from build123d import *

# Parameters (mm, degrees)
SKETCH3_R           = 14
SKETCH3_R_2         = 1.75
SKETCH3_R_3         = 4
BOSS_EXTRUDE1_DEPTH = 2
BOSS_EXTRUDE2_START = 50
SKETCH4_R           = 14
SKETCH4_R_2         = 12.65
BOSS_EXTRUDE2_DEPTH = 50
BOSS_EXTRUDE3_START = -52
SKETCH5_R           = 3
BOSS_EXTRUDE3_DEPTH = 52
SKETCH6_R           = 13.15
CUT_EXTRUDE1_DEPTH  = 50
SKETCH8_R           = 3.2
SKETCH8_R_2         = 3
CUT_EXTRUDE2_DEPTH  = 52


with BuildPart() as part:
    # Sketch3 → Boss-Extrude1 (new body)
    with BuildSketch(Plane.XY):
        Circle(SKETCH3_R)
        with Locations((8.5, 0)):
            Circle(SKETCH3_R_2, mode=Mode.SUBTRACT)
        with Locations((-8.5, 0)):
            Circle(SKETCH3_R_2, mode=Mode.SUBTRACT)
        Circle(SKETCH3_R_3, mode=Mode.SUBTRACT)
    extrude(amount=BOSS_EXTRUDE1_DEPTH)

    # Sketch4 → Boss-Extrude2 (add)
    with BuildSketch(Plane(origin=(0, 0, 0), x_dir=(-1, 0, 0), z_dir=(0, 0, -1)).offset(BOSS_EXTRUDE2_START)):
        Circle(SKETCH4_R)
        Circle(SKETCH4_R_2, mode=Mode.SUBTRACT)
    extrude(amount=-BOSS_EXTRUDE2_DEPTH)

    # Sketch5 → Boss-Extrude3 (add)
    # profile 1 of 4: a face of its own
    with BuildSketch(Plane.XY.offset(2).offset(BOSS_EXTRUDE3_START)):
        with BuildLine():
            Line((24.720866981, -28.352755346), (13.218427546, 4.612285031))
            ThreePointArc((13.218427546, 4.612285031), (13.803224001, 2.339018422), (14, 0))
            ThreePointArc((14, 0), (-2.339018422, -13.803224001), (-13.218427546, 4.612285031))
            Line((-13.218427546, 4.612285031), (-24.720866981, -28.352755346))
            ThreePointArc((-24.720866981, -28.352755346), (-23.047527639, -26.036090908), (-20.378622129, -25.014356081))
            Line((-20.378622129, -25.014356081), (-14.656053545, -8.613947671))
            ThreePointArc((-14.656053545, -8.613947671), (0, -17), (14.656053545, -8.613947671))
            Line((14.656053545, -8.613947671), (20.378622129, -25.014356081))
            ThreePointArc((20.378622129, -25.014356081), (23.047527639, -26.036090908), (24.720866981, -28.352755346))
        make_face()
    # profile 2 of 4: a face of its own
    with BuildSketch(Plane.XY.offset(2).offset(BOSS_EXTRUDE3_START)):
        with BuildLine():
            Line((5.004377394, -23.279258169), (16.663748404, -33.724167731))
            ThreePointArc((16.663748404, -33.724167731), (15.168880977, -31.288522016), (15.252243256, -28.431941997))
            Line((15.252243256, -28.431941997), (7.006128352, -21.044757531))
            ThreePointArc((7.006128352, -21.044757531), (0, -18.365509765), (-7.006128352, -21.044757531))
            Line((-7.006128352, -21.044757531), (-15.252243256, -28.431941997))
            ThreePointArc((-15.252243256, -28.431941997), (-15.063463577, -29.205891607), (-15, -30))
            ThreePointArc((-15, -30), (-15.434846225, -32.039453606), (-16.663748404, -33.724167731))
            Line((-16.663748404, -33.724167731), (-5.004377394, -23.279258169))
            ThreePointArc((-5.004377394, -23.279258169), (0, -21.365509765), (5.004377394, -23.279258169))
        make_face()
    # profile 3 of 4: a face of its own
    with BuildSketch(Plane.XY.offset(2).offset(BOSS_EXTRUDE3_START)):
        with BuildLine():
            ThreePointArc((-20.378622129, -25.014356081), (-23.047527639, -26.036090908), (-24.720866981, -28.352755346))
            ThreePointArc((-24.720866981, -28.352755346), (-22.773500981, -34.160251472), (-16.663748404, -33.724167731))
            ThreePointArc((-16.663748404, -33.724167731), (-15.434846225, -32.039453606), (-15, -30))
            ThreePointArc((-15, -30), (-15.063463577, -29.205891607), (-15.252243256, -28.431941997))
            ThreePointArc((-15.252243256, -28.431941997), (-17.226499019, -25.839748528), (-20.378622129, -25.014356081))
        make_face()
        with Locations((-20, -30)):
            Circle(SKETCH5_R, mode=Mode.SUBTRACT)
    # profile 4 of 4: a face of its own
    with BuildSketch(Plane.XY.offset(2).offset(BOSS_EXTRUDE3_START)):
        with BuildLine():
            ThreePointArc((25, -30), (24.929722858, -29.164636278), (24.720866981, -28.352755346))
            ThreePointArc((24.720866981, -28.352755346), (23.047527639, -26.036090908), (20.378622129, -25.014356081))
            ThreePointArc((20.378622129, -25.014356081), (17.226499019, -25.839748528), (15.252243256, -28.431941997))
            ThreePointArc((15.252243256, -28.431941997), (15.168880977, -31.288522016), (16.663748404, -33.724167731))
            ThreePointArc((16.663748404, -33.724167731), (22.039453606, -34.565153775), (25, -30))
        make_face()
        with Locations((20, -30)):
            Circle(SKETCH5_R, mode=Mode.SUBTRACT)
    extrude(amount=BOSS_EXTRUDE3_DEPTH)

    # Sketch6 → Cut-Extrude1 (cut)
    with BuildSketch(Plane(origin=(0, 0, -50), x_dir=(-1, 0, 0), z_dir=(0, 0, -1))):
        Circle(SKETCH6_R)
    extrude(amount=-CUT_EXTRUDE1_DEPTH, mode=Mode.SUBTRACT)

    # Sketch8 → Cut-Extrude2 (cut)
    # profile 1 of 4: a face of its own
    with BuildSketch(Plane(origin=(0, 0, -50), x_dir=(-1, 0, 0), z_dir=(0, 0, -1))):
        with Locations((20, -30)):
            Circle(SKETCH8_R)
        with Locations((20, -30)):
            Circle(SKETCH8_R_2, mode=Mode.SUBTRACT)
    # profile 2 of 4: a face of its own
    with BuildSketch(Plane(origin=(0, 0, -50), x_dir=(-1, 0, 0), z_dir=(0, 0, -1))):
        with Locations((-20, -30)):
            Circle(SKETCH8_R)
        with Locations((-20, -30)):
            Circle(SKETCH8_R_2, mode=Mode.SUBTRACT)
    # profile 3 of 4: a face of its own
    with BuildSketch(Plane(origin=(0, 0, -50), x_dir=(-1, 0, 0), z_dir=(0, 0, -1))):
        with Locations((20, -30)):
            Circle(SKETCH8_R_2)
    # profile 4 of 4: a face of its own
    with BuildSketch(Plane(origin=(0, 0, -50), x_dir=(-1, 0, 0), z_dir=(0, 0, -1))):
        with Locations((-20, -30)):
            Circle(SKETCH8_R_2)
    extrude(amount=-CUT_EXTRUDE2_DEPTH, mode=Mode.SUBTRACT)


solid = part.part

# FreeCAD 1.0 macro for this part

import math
import FreeCAD as App
import Part
import Sketcher

doc = App.newDocument("Part")
params = doc.addObject("Spreadsheet::Sheet", "Params")
for row, (alias, value) in enumerate([
    ("sketch1_diameter", "28 mm"),
    ("sketch1_diameter2", "8 mm"),
    ("sketch1_diameter3", "3.5 mm"),
    ("pad1_length", "2 mm"),
    ("sketch2_diameter", "28 mm"),
    ("sketch2_diameter2", "25.3 mm"),
    ("pad2_length", "50 mm"),
    ("sketch3_diameter", "6 mm"),
    ("sketch3_radius", "14 mm"),
    ("sketch3_radius2", "5 mm"),
    ("sketch3_radius3", "17 mm"),
    ("sketch3_radius4", "7.5 mm"),
    ("pad3_length", "52 mm"),
    ("sketch4_diameter", "26.3 mm"),
    ("pocket1_length", "50 mm"),
    ("sketch5_diameter", "6.4 mm"),
    ("pocket2_length", "52 mm"),
], start=1):
    params.set(f"A{row}", alias)
    params.set(f"B{row}", "=" + value)
    params.setAlias(f"B{row}", alias)

body = doc.addObject("PartDesign::Body", "Body")

# Sketch on XY plane
sketch1 = body.newObject("Sketcher::SketchObject", "Sketch")
sketch1.AttachmentSupport = (doc.getObject("XY_Plane"), [""])
sketch1.MapMode = "FlatFace"
sketch1.addGeometry([
    Part.Circle(App.Vector(0, 0, 0), App.Vector(0, 0, 1), 14),
    Part.Circle(App.Vector(-8.5, 0, 0), App.Vector(0, 0, 1), 1.8),
    Part.Circle(App.Vector(0, 0, 0), App.Vector(0, 0, 1), 4),
    Part.Circle(App.Vector(8.5, 0, 0), App.Vector(0, 0, 1), 1.8),
], False)
sketch1.addConstraint([
    Sketcher.Constraint("Coincident", 0, 3, -1, 1),
    Sketcher.Constraint("Coincident", 2, 3, -1, 1),
    Sketcher.Constraint("Equal", 1, 3),
    Sketcher.Constraint("Symmetric", 1, 3, 3, 3, -1, 1),
    Sketcher.Constraint("PointOnObject", 1, 3, -1),
    Sketcher.Constraint("Diameter", 0, 28.0),
    Sketcher.Constraint("Diameter", 2, 8.0),
    Sketcher.Constraint("Diameter", 1, 3.5),
    Sketcher.Constraint("DistanceX", 1, 3, 3, 3, 17.0),
])
sketch1.setExpression("Constraints[5]", "Params.sketch1_diameter")
sketch1.setExpression("Constraints[6]", "Params.sketch1_diameter2")
sketch1.setExpression("Constraints[7]", "Params.sketch1_diameter3")
pad1 = body.newObject("PartDesign::Pad", "Pad")
pad1.Profile = sketch1
pad1.setExpression("Length", "Params.pad1_length")

# Sketch on XY plane
sketch2 = body.newObject("Sketcher::SketchObject", "Sketch001")
sketch2.AttachmentSupport = (doc.getObject("XY_Plane"), [""])
sketch2.MapMode = "FlatFace"
sketch2.AttachmentOffset = App.Placement(App.Vector(0, 0, -50), App.Rotation())
sketch2.addGeometry([
    Part.Circle(App.Vector(0, 0, 0), App.Vector(0, 0, 1), 14),
    Part.Circle(App.Vector(0, 0, 0), App.Vector(0, 0, 1), 13),
], False)
sketch2.addConstraint([
    Sketcher.Constraint("Coincident", 0, 3, -1, 1),
    Sketcher.Constraint("Coincident", 1, 3, -1, 1),
    Sketcher.Constraint("Diameter", 0, 28.0),
    Sketcher.Constraint("Diameter", 1, 25.3),
])
sketch2.setExpression("Constraints[2]", "Params.sketch2_diameter")
sketch2.setExpression("Constraints[3]", "Params.sketch2_diameter2")
pad2 = body.newObject("PartDesign::Pad", "Pad001")
pad2.Profile = sketch2
pad2.setExpression("Length", "Params.pad2_length")

# Sketch on XY plane
sketch3 = body.newObject("Sketcher::SketchObject", "Sketch002")
sketch3.AttachmentSupport = (doc.getObject("XY_Plane"), [""])
sketch3.MapMode = "FlatFace"
sketch3.AttachmentOffset = App.Placement(App.Vector(0, 0, -50), App.Rotation())
sketch3.addGeometry([
    Part.LineSegment(App.Vector(24.7, -28.4, 0), App.Vector(13.2, 4.6, 0)),  # 0
    Part.ArcOfCircle(Part.Circle(App.Vector(0, 0, 0), App.Vector(0, 0, 1), 14), math.radians(0), math.radians(19.24)),  # 1
    Part.ArcOfCircle(Part.Circle(App.Vector(0, 0, 0), App.Vector(0, 0, 1), 14), math.radians(161), math.radians(360)),  # 2
    Part.LineSegment(App.Vector(-13.2, 4.6, 0), App.Vector(-24.7, -28.4, 0)),  # 3
    Part.ArcOfCircle(Part.Circle(App.Vector(-20, -30, 0), App.Vector(0, 0, 1), 5), math.radians(161), math.radians(312)),  # 4
    Part.LineSegment(App.Vector(-16.7, -33.7, 0), App.Vector(-5, -23.3, 0)),  # 5
    Part.ArcOfCircle(Part.Circle(App.Vector(0, -28.9, 0), App.Vector(0, 0, 1), 7.5), math.radians(48), math.radians(132)),  # 6
    Part.LineSegment(App.Vector(5, -23.3, 0), App.Vector(16.7, -33.7, 0)),  # 7
    Part.ArcOfCircle(Part.Circle(App.Vector(20, -30, 0), App.Vector(0, 0, 1), 5), math.radians(-132), math.radians(0)),  # 8
    Part.ArcOfCircle(Part.Circle(App.Vector(20, -30, 0), App.Vector(0, 0, 1), 5), math.radians(0), math.radians(19.24)),  # 9
    Part.LineSegment(App.Vector(-20.4, -25, 0), App.Vector(-14.7, -8.6, 0)),  # 10
    Part.ArcOfCircle(Part.Circle(App.Vector(0, 0, 0), App.Vector(0, 0, 1), 17), math.radians(-150), math.radians(-30)),  # 11
    Part.LineSegment(App.Vector(14.7, -8.6, 0), App.Vector(20.4, -25, 0)),  # 12
    Part.ArcOfCircle(Part.Circle(App.Vector(20, -30, 0), App.Vector(0, 0, 1), 5), math.radians(86), math.radians(162)),  # 13
    Part.LineSegment(App.Vector(15.3, -28.4, 0), App.Vector(7, -21, 0)),  # 14
    Part.ArcOfCircle(Part.Circle(App.Vector(0, -28.9, 0), App.Vector(0, 0, 1), 10.5), math.radians(48), math.radians(132)),  # 15
    Part.LineSegment(App.Vector(-7, -21, 0), App.Vector(-15.3, -28.4, 0)),  # 16
    Part.ArcOfCircle(Part.Circle(App.Vector(-20, -30, 0), App.Vector(0, 0, 1), 5), math.radians(18), math.radians(94)),  # 17
    Part.Circle(App.Vector(-20, -30, 0), App.Vector(0, 0, 1), 3),  # 18
    Part.Circle(App.Vector(20, -30, 0), App.Vector(0, 0, 1), 3),  # 19
], False)
sketch3.addConstraint([
    Sketcher.Constraint("Tangent", 0, 2, 1, 2),
    Sketcher.Constraint("Tangent", 1, 1, 2, 2),
    Sketcher.Constraint("Tangent", 2, 1, 3, 1),
    Sketcher.Constraint("Tangent", 3, 2, 4, 1),
    Sketcher.Constraint("Tangent", 4, 2, 5, 1),
    Sketcher.Constraint("Tangent", 5, 2, 6, 2),
    Sketcher.Constraint("Tangent", 6, 1, 7, 1),
    Sketcher.Constraint("Tangent", 7, 2, 8, 1),
    Sketcher.Constraint("Tangent", 8, 2, 9, 1),
    Sketcher.Constraint("Tangent", 9, 2, 0, 1),
    Sketcher.Constraint("Coincident", 10, 2, 11, 1),
    Sketcher.Constraint("Coincident", 11, 2, 12, 1),
    Sketcher.Constraint("Coincident", 12, 2, 13, 1),
    Sketcher.Constraint("Coincident", 13, 2, 14, 1),
    Sketcher.Constraint("Tangent", 14, 2, 15, 1),
    Sketcher.Constraint("Tangent", 15, 2, 16, 1),
    Sketcher.Constraint("Coincident", 16, 2, 17, 1),
    Sketcher.Constraint("Coincident", 17, 2, 10, 1),
    Sketcher.Constraint("Coincident", 1, 3, -1, 1),
    Sketcher.Constraint("Coincident", 11, 3, -1, 1),
    Sketcher.Constraint("Coincident", 13, 3, 8, 3),
    Sketcher.Constraint("Coincident", 15, 3, 6, 3),
    Sketcher.Constraint("Coincident", 17, 3, 4, 3),
    Sketcher.Constraint("Coincident", 18, 3, 4, 3),
    Sketcher.Constraint("Coincident", 19, 3, 8, 3),
    Sketcher.Constraint("Equal", 1, 2),
    Sketcher.Constraint("Equal", 4, 8),
    Sketcher.Constraint("Equal", 8, 9),
    Sketcher.Constraint("Equal", 9, 13),
    Sketcher.Constraint("Equal", 13, 17),
    Sketcher.Constraint("Equal", 18, 19),
    Sketcher.Constraint("Symmetric", 4, 3, 8, 3, -2),
    Sketcher.Constraint("Symmetric", 14, 2, 15, 2, -2),
    Sketcher.Constraint("PointOnObject", 1, 1, -1),
    Sketcher.Constraint("Parallel", 3, 10),
    Sketcher.Constraint("Parallel", 0, 12),
    Sketcher.Constraint("Parallel", 7, 14),
    Sketcher.Constraint("Horizontal", 19, 3, 8, 2),
    Sketcher.Constraint("Horizontal", 10, 2, 11, 2),
    Sketcher.Constraint("Diameter", 18, 6.0),
    Sketcher.Constraint("Radius", 1, 14.0),
    Sketcher.Constraint("Radius", 4, 5.0),
    Sketcher.Constraint("Radius", 11, 17.0),
    Sketcher.Constraint("Radius", 6, 7.5),
    Sketcher.Constraint("Radius", 15, 10.5),
    Sketcher.Constraint("DistanceX", 4, 3, -1, 1, 20.0),
    Sketcher.Constraint("DistanceY", 4, 3, -1, 1, 30.0),
    Sketcher.Constraint("DistanceY", 9, 2, 12, 2, 3.338399),
    Sketcher.Constraint("DistanceY", 6, 1, 14, 2, 2.234501),
])
sketch3.setExpression("Constraints[39]", "Params.sketch3_diameter")
sketch3.setExpression("Constraints[40]", "Params.sketch3_radius")
sketch3.setExpression("Constraints[41]", "Params.sketch3_radius2")
sketch3.setExpression("Constraints[42]", "Params.sketch3_radius3")
sketch3.setExpression("Constraints[43]", "Params.sketch3_radius4")
pad3 = body.newObject("PartDesign::Pad", "Pad002")
pad3.Profile = sketch3
pad3.setExpression("Length", "Params.pad3_length")

# Sketch on XY plane
sketch4 = body.newObject("Sketcher::SketchObject", "Sketch003")
sketch4.AttachmentSupport = (doc.getObject("XY_Plane"), [""])
sketch4.MapMode = "FlatFace"
sketch4.AttachmentOffset = App.Placement(App.Vector(0, 0, -50), App.Rotation())
sketch4.addGeometry(Part.Circle(App.Vector(0, 0, 0), App.Vector(0, 0, 1), 13), False)
sketch4.addConstraint([
    Sketcher.Constraint("Coincident", 0, 3, -1, 1),
    Sketcher.Constraint("Diameter", 0, 26.3),
])
sketch4.setExpression("Constraints[1]", "Params.sketch4_diameter")
pocket1 = body.newObject("PartDesign::Pocket", "Pocket")
pocket1.Profile = sketch4
pocket1.setExpression("Length", "Params.pocket1_length")
pocket1.Reversed = True

# Sketch on XY plane
sketch5 = body.newObject("Sketcher::SketchObject", "Sketch004")
sketch5.AttachmentSupport = (doc.getObject("XY_Plane"), [""])
sketch5.MapMode = "FlatFace"
sketch5.AttachmentOffset = App.Placement(App.Vector(0, 0, -50), App.Rotation())
sketch5.addGeometry([
    Part.Circle(App.Vector(-20, -30, 0), App.Vector(0, 0, 1), 3.2),
    Part.Circle(App.Vector(20, -30, 0), App.Vector(0, 0, 1), 3.2),
], False)
sketch5.addConstraint([
    Sketcher.Constraint("Equal", 0, 1),
    Sketcher.Constraint("Symmetric", 0, 3, 1, 3, -2),
    Sketcher.Constraint("Diameter", 0, 6.4),
    Sketcher.Constraint("DistanceX", 0, 3, -1, 1, 20.0),
    Sketcher.Constraint("DistanceY", 0, 3, -1, 1, 30.0),
])
sketch5.setExpression("Constraints[2]", "Params.sketch5_diameter")
pocket2 = body.newObject("PartDesign::Pocket", "Pocket001")
pocket2.Profile = sketch5
pocket2.setExpression("Length", "Params.pocket2_length")
pocket2.Reversed = True

doc.recompute()
